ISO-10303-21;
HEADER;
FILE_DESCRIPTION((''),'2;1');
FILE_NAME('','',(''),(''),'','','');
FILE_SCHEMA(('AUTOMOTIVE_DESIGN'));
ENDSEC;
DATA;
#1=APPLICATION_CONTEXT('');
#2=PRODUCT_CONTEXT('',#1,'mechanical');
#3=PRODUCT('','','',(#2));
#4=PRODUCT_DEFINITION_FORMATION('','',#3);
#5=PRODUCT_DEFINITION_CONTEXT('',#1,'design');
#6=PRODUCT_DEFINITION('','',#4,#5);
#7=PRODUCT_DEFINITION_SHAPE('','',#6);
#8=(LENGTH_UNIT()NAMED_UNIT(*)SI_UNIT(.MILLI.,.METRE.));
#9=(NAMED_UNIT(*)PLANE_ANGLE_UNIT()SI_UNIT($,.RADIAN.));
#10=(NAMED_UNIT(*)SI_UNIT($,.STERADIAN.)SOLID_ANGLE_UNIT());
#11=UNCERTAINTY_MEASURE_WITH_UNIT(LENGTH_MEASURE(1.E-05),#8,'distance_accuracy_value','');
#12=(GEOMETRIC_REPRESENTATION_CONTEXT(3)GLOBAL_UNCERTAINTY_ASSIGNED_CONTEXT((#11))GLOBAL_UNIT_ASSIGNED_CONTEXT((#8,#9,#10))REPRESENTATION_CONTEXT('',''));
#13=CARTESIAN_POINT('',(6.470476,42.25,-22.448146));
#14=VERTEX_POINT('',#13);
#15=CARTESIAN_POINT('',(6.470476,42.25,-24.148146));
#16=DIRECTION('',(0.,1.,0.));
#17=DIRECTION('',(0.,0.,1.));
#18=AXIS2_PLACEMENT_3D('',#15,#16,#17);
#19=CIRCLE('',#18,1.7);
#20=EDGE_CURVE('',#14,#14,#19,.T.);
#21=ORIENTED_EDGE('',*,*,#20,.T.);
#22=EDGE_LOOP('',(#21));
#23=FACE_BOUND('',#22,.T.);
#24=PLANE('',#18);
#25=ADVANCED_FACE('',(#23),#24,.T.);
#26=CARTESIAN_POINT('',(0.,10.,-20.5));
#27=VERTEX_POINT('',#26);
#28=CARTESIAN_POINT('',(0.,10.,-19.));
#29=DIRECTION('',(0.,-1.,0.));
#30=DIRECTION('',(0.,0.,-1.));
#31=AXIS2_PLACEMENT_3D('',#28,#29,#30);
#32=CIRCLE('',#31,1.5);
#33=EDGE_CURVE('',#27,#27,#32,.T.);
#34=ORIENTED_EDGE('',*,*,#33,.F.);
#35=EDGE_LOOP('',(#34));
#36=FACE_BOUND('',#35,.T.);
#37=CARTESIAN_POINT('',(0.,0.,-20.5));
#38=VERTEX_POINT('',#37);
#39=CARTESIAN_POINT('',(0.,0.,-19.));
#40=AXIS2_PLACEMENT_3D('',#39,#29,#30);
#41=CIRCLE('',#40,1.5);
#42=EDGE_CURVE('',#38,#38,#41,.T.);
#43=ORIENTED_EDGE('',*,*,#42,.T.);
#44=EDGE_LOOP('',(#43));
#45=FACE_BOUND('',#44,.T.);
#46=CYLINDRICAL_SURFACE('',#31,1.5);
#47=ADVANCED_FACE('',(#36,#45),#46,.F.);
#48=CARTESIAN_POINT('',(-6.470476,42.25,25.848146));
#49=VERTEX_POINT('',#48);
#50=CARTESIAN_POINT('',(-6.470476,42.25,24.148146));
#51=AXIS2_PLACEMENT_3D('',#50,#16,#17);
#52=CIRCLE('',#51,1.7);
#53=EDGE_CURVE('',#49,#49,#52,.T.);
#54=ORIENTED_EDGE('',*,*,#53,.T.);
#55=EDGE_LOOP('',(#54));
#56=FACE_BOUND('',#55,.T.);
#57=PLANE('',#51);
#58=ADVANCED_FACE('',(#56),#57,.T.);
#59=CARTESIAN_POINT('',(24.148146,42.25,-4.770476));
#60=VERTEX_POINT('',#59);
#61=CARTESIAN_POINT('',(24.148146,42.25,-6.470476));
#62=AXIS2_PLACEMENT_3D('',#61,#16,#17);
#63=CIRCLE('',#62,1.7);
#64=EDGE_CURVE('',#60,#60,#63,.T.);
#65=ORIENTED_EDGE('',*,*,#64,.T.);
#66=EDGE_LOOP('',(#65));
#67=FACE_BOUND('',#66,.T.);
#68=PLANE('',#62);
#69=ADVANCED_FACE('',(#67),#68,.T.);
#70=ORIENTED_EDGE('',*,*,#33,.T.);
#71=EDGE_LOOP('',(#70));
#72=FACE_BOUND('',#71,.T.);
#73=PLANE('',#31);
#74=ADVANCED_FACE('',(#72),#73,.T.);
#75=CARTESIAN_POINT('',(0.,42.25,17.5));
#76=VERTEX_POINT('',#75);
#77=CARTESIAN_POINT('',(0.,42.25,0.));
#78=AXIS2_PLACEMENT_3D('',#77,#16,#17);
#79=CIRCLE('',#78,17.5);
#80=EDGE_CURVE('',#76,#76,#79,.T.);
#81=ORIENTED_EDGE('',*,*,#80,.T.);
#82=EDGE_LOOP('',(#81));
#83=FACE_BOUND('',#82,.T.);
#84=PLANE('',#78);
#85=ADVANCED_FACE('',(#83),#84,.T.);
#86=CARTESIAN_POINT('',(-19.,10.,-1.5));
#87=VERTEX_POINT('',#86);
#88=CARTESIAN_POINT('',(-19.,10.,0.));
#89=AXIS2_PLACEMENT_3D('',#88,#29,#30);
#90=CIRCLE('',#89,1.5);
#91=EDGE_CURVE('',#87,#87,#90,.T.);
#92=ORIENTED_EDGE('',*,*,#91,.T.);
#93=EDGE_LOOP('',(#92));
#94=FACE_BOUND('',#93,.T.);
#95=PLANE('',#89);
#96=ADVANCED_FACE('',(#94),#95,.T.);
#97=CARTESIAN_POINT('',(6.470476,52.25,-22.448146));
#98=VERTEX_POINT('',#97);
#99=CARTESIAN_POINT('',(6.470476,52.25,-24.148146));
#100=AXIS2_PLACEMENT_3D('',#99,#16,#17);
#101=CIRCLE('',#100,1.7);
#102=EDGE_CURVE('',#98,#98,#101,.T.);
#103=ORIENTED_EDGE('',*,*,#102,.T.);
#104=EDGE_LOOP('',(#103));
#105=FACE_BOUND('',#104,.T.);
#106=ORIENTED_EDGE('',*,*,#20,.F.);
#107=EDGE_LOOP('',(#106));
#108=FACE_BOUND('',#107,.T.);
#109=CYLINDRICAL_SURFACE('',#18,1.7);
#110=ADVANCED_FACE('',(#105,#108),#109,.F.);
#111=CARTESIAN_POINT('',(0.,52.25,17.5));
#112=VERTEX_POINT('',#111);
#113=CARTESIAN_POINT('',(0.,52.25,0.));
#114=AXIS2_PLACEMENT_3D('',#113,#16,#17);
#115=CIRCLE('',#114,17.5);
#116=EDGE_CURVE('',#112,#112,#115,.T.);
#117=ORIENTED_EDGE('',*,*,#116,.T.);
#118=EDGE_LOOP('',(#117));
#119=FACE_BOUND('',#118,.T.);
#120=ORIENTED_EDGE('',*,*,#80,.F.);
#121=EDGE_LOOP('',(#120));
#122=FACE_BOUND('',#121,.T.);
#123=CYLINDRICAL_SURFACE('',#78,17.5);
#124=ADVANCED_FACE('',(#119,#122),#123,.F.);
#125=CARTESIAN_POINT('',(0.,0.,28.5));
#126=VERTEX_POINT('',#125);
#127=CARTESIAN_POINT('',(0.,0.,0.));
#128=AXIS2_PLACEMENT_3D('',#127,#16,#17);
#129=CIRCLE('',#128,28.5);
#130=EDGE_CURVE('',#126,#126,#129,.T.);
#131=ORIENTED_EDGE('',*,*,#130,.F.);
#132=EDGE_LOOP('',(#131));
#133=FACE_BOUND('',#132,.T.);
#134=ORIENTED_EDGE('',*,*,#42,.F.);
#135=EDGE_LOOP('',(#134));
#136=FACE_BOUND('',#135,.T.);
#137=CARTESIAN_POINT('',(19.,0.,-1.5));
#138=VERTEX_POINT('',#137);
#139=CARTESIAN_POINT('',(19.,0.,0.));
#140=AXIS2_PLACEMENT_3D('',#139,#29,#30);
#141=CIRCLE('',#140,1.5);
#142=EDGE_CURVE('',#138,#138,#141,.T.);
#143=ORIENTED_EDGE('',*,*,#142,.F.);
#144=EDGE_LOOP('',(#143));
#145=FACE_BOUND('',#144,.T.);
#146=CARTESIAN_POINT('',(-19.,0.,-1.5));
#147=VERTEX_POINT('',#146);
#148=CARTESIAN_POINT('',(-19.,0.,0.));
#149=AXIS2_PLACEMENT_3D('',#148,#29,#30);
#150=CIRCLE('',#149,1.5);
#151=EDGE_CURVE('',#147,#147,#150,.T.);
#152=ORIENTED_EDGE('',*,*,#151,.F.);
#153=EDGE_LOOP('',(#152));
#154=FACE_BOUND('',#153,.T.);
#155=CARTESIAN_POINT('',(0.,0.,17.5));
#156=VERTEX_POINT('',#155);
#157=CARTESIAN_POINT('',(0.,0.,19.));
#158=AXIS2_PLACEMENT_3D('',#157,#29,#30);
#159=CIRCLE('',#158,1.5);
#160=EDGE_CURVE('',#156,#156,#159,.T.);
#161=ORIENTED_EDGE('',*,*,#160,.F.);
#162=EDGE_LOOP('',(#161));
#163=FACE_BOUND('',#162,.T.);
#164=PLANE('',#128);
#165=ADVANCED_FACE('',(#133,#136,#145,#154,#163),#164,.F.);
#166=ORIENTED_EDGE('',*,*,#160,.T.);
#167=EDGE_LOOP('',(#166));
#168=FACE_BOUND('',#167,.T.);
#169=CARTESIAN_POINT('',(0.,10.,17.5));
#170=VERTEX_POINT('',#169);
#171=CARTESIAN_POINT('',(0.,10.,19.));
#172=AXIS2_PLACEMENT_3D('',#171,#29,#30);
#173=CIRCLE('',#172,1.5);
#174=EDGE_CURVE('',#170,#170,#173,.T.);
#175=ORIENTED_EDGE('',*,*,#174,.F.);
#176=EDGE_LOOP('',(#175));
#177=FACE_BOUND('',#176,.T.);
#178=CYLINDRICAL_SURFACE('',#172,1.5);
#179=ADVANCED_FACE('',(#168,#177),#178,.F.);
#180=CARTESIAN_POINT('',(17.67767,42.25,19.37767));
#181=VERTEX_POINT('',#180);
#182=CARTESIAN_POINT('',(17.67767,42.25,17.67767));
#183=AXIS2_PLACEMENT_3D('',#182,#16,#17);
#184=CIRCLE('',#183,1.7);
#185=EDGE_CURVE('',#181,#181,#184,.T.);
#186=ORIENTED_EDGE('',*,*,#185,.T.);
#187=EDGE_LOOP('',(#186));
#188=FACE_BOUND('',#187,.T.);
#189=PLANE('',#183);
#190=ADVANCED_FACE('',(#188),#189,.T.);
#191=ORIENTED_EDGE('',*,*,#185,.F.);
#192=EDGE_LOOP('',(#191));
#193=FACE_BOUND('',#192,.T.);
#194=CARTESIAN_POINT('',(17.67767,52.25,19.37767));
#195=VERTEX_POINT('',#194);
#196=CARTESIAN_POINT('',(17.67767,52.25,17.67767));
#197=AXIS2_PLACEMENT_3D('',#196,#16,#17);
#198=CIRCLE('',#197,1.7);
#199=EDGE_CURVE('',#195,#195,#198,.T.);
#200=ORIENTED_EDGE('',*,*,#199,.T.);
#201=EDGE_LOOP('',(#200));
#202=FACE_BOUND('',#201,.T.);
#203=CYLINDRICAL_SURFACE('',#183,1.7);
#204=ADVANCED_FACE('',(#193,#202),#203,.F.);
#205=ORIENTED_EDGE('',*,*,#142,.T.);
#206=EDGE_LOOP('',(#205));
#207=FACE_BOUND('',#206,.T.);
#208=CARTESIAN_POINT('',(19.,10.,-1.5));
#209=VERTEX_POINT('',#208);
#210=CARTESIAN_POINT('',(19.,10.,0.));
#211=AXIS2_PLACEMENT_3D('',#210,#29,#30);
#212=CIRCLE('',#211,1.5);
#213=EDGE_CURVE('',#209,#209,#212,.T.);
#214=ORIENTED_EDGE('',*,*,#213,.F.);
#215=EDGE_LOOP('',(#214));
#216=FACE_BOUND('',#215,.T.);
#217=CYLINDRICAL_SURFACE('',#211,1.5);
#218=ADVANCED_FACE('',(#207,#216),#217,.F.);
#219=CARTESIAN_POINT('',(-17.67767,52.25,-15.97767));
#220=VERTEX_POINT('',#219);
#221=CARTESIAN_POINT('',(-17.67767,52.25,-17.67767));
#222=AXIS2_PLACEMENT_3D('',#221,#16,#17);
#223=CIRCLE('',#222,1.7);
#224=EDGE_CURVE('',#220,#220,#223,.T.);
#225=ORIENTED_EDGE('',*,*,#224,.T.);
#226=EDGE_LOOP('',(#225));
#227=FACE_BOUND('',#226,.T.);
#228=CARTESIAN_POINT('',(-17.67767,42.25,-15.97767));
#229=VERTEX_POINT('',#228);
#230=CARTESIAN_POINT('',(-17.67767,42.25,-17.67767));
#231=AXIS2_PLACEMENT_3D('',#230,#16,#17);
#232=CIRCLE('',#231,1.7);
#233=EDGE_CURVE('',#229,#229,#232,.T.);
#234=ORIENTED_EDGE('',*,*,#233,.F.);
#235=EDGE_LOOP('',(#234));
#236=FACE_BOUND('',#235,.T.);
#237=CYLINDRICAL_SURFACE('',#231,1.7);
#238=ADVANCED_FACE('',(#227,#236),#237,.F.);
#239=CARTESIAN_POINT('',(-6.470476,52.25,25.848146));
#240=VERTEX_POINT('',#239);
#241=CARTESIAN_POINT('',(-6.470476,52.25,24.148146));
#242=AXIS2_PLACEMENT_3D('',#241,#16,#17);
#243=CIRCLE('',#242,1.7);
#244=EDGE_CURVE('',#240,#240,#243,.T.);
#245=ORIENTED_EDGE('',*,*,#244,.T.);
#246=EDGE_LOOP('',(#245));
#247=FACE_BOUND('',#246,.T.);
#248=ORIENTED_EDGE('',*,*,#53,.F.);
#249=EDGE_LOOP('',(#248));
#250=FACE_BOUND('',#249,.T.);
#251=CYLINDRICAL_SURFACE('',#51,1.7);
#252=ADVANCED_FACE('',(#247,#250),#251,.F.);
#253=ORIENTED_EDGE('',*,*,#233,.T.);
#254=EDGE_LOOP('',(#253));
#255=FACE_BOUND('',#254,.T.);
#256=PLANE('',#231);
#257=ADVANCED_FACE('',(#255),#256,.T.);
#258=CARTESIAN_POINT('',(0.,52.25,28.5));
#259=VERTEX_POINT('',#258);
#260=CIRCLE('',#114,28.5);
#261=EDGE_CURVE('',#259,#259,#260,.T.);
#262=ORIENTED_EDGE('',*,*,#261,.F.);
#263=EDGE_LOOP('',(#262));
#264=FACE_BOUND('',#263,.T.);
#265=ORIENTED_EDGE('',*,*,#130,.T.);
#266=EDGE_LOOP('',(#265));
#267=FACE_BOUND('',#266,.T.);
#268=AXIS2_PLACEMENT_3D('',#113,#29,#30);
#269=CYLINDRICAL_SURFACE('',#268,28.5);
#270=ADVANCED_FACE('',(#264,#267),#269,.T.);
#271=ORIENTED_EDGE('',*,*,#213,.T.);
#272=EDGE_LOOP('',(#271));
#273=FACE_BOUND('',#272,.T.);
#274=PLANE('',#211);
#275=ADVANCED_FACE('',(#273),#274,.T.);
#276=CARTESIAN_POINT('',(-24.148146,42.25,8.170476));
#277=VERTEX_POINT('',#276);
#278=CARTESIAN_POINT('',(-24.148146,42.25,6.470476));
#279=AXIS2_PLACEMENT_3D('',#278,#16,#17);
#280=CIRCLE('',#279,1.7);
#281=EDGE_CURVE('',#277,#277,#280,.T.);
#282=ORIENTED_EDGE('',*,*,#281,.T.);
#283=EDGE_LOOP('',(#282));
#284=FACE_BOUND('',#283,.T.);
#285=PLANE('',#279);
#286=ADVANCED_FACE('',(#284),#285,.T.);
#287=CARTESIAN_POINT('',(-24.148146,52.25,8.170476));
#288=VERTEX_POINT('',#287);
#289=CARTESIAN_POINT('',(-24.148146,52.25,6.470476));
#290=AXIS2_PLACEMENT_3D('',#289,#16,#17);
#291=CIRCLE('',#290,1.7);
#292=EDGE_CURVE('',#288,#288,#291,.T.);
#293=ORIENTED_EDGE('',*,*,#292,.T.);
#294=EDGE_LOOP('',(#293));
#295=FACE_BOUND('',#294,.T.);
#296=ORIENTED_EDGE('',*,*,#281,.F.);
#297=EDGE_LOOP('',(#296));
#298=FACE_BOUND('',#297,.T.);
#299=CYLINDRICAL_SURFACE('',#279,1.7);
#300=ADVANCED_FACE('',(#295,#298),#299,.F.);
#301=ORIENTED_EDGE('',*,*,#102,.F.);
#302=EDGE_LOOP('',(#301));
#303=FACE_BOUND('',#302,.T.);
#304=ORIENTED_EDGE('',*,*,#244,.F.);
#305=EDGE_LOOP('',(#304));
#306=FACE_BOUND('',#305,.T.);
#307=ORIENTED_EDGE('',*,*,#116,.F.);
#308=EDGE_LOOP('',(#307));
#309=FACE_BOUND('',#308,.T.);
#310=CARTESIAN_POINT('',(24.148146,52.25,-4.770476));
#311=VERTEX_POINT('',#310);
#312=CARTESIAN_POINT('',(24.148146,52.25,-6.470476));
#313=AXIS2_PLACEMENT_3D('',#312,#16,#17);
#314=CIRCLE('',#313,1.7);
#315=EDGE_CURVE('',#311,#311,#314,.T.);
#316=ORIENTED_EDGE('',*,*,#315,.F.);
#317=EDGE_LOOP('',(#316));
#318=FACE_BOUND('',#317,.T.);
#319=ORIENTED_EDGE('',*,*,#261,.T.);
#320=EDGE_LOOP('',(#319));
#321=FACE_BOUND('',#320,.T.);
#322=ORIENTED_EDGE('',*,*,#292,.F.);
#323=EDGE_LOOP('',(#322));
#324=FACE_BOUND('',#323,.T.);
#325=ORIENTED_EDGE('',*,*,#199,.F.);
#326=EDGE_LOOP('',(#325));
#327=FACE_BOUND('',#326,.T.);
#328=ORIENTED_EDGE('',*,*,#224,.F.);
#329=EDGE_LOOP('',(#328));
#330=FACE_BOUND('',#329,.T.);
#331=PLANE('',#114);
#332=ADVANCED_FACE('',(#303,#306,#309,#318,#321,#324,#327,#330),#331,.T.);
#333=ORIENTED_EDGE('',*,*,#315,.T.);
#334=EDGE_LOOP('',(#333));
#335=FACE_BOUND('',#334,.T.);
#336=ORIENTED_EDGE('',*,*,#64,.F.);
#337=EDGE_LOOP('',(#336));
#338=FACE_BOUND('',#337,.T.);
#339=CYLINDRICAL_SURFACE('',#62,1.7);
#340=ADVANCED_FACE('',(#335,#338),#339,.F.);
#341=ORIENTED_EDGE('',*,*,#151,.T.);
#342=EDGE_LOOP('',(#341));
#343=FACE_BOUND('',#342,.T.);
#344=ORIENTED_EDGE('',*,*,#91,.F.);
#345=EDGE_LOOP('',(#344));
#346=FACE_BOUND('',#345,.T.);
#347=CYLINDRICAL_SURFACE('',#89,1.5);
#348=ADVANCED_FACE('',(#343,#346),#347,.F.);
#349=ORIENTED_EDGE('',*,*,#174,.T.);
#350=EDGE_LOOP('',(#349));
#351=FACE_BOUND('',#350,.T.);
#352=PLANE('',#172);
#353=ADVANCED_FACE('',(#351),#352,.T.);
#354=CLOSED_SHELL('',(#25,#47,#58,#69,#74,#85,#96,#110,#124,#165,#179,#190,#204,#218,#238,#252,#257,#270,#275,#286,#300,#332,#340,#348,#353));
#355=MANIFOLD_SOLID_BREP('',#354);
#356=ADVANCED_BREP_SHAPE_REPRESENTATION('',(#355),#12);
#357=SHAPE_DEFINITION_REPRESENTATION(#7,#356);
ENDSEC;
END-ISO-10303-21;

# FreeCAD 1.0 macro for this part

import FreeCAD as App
import Part
import Sketcher

doc = App.newDocument("Part")
body = doc.addObject("PartDesign::Body", "Body")

sketch1 = body.newObject("Sketcher::SketchObject", "Sketch")
sketch1.AttachmentSupport = (doc.getObject("XZ_Plane"), [""])
sketch1.MapMode = "FlatFace"
sketch1.addGeometry(Part.Circle(App.Vector(0, 0, 0), App.Vector(0, 0, 1), 28.5), False)
sketch1.addConstraint(Sketcher.Constraint("Coincident", 0, 3, -1, 1))
sketch1.addConstraint(Sketcher.Constraint("Diameter", 0, 57.0))
pad1 = body.newObject("PartDesign::Pad", "Pad")
pad1.Profile = sketch1
pad1.Length = 52.25
pad1.Reversed = True

sketch2 = body.newObject("Sketcher::SketchObject", "Sketch001")
sketch2.AttachmentSupport = (doc.getObject("XZ_Plane"), [""])
sketch2.MapMode = "FlatFace"
sketch2.AttachmentOffset = App.Placement(App.Vector(0, 0, -52.25), App.Rotation())
sketch2.addGeometry(Part.Circle(App.Vector(0, 0, 0), App.Vector(0, 0, 1), 17.5), False)
sketch2.addConstraint(Sketcher.Constraint("Coincident", 0, 3, -1, 1))
sketch2.addConstraint(Sketcher.Constraint("Diameter", 0, 35.0))
pocket1 = body.newObject("PartDesign::Pocket", "Pocket")
pocket1.Profile = sketch2
pocket1.Length = 10
pocket1.Reversed = True

sketch3 = body.newObject("Sketcher::SketchObject", "Sketch002")
sketch3.AttachmentSupport = (doc.getObject("XZ_Plane"), [""])
sketch3.MapMode = "FlatFace"
sketch3.AttachmentOffset = App.Placement(App.Vector(0, 0, -52.25), App.Rotation())
sketch3.addGeometry(Part.Circle(App.Vector(17.67767, 17.67767, 0), App.Vector(0, 0, 1), 1.7), False)
sketch3.addGeometry(Part.Circle(App.Vector(-6.470476, 24.148146, 0), App.Vector(0, 0, 1), 1.7), False)
sketch3.addGeometry(Part.Circle(App.Vector(-24.148146, 6.470476, 0), App.Vector(0, 0, 1), 1.7), False)
sketch3.addGeometry(Part.Circle(App.Vector(-17.67767, -17.67767, 0), App.Vector(0, 0, 1), 1.7), False)
sketch3.addGeometry(Part.Circle(App.Vector(6.470476, -24.148146, 0), App.Vector(0, 0, 1), 1.7), False)
sketch3.addGeometry(Part.Circle(App.Vector(24.148146, -6.470476, 0), App.Vector(0, 0, 1), 1.7), False)
sketch3.addConstraint(Sketcher.Constraint("Equal", 0, 1))
sketch3.addConstraint(Sketcher.Constraint("Equal", 1, 2))
sketch3.addConstraint(Sketcher.Constraint("Equal", 2, 3))
sketch3.addConstraint(Sketcher.Constraint("Equal", 3, 4))
sketch3.addConstraint(Sketcher.Constraint("Equal", 4, 5))
sketch3.addConstraint(Sketcher.Constraint("Symmetric", 0, 3, 3, 3, -1, 1))
sketch3.addConstraint(Sketcher.Constraint("Symmetric", 1, 3, 4, 3, -1, 1))
sketch3.addConstraint(Sketcher.Constraint("Symmetric", 2, 3, 5, 3, -1, 1))
sketch3.addConstraint(Sketcher.Constraint("Diameter", 0, 3.4))
sketch3.addConstraint(Sketcher.Constraint("DistanceX", -1, 1, 0, 3, 17.67767))
sketch3.addConstraint(Sketcher.Constraint("DistanceY", -1, 1, 0, 3, 17.67767))
sketch3.addConstraint(Sketcher.Constraint("DistanceX", 2, 3, 1, 3, 17.67767))
sketch3.addConstraint(Sketcher.Constraint("DistanceY", 2, 3, 1, 3, 17.67767))
sketch3.addConstraint(Sketcher.Constraint("DistanceX", 2, 3, 4, 3, 30.618622))
sketch3.addConstraint(Sketcher.Constraint("DistanceY", 4, 3, 2, 3, 30.618622))
pocket2 = body.newObject("PartDesign::Pocket", "Pocket001")
pocket2.Profile = sketch3
pocket2.Length = 10
pocket2.Reversed = True

sketch4 = body.newObject("Sketcher::SketchObject", "Sketch003")
sketch4.AttachmentSupport = (doc.getObject("XZ_Plane"), [""])
sketch4.MapMode = "FlatFace"
sketch4.addGeometry(Part.Circle(App.Vector(0, -19, 0), App.Vector(0, 0, 1), 1.5), False)
sketch4.addGeometry(Part.Circle(App.Vector(-19, 0, 0), App.Vector(0, 0, 1), 1.5), False)
sketch4.addGeometry(Part.Circle(App.Vector(0, 19, 0), App.Vector(0, 0, 1), 1.5), False)
sketch4.addGeometry(Part.Circle(App.Vector(19, 0, 0), App.Vector(0, 0, 1), 1.5), False)
sketch4.addConstraint(Sketcher.Constraint("Equal", 0, 1))
sketch4.addConstraint(Sketcher.Constraint("Equal", 1, 2))
sketch4.addConstraint(Sketcher.Constraint("Equal", 2, 3))
sketch4.addConstraint(Sketcher.Constraint("Symmetric", 0, 3, 2, 3, -1, 1))
sketch4.addConstraint(Sketcher.Constraint("Symmetric", 1, 3, 3, 3, -1, 1))
sketch4.addConstraint(Sketcher.Constraint("PointOnObject", 0, 3, -2))
sketch4.addConstraint(Sketcher.Constraint("PointOnObject", 1, 3, -1))
sketch4.addConstraint(Sketcher.Constraint("Diameter", 0, 3.0))
sketch4.addConstraint(Sketcher.Constraint("DistanceY", 0, 3, -1, 1, 19.0))
sketch4.addConstraint(Sketcher.Constraint("DistanceX", 1, 3, -1, 1, 19.0))
pocket3 = body.newObject("PartDesign::Pocket", "Pocket002")
pocket3.Profile = sketch4
pocket3.Length = 10

doc.recompute()
